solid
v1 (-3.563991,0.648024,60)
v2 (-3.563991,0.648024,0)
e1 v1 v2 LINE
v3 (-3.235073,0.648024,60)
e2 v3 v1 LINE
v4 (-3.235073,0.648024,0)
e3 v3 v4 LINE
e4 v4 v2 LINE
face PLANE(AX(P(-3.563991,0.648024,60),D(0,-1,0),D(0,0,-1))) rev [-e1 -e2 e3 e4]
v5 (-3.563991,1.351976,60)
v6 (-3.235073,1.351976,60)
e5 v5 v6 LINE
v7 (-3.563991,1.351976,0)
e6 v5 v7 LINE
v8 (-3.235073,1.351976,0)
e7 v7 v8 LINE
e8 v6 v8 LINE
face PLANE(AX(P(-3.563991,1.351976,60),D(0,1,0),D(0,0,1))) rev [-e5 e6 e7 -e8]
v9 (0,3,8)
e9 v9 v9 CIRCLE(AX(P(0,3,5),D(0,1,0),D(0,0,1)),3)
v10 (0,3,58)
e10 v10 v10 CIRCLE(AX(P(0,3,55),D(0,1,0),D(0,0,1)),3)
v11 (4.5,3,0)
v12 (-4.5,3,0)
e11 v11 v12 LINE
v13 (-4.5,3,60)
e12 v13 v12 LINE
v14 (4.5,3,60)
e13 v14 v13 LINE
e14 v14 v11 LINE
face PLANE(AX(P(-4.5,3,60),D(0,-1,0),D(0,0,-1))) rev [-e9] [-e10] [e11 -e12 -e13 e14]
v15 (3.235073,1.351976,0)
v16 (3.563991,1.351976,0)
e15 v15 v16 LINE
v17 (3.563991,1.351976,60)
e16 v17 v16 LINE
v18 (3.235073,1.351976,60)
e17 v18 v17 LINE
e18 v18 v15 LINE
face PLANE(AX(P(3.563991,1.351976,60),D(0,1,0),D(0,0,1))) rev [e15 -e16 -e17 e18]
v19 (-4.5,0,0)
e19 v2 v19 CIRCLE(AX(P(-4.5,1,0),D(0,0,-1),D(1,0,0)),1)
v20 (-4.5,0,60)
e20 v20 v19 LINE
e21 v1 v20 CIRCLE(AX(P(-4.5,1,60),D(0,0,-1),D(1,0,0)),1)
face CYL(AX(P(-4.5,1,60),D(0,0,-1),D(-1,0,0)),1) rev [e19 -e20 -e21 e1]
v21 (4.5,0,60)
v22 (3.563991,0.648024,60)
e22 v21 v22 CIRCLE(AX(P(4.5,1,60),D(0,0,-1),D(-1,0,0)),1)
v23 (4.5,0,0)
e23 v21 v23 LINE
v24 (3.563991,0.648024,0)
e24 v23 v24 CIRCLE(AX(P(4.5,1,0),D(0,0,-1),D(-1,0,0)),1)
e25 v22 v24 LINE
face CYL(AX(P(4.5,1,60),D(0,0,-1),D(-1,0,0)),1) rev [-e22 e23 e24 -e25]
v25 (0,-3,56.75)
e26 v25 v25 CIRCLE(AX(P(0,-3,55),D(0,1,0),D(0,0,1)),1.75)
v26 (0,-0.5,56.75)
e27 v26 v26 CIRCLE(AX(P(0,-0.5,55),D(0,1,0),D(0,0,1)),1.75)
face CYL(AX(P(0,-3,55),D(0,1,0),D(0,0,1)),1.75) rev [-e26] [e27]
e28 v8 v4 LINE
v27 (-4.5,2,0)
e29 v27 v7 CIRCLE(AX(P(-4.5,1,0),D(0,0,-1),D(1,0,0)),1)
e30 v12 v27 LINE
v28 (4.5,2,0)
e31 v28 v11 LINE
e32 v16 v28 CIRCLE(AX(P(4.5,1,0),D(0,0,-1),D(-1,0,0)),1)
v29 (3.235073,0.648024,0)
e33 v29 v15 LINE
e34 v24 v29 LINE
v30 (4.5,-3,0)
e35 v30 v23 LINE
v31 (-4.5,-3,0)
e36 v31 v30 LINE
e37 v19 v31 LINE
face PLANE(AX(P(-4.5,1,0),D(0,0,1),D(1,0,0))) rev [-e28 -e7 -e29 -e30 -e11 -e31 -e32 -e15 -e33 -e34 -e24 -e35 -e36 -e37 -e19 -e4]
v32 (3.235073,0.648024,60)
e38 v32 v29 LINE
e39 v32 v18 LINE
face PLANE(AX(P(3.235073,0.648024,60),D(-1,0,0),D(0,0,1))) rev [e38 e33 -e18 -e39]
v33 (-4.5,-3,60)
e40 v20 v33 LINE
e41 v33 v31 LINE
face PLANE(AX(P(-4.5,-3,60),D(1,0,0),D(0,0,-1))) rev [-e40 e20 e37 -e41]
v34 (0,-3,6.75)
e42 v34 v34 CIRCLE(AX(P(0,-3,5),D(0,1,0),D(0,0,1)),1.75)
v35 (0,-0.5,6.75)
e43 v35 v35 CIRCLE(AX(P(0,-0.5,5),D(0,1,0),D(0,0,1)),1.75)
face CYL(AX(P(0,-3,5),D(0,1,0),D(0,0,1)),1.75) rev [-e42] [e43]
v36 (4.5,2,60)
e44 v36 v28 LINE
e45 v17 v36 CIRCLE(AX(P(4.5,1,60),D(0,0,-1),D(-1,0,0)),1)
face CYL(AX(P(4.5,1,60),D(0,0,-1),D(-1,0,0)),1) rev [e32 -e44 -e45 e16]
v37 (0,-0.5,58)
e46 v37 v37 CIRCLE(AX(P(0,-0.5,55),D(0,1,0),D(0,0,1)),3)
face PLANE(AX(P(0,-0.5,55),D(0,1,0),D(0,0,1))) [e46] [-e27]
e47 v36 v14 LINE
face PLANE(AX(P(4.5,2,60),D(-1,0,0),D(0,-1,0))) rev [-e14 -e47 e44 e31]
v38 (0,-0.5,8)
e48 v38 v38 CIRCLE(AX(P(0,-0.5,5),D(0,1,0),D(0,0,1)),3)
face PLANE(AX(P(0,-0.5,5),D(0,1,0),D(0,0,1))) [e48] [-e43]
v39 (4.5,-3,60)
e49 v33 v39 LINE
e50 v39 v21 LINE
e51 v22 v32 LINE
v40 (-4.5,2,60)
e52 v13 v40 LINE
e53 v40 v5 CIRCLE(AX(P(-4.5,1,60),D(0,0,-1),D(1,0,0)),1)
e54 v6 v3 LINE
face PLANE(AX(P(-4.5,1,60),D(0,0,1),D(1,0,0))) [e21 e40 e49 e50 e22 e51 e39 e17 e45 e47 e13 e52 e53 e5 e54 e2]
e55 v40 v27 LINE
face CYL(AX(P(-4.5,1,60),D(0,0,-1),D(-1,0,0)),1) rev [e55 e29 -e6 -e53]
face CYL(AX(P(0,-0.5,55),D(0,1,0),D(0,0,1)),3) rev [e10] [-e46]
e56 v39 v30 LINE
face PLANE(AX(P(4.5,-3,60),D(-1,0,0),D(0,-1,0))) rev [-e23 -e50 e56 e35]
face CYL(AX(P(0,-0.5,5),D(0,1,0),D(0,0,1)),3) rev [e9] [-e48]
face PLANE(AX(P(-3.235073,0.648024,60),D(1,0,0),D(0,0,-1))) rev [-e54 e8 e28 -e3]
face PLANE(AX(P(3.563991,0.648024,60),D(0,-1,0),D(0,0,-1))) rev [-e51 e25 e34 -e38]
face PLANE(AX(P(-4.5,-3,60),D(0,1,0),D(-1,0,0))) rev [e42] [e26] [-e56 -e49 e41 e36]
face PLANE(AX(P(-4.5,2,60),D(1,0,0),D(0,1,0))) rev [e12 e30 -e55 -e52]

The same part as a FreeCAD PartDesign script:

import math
import FreeCAD as App
import Part
import Sketcher
Q = App.Units.Quantity

doc = App.newDocument("Part")
body = doc.addObject("PartDesign::Body", "Body")

# Sketch on XY plane
sketch1 = body.newObject("Sketcher::SketchObject", "Sketch")
sketch1.AttachmentSupport = (doc.getObject("XY_Plane"), [""])
sketch1.MapMode = "FlatFace"
sketch1.addGeometry([
    Part.LineSegment(App.Vector(-4.5, -3, 0), App.Vector(4.5, -3, 0)),  # 0
    Part.LineSegment(App.Vector(4.5, -3, 0), App.Vector(4.5, 0, 0)),  # 1
    Part.ArcOfCircle(Part.Circle(App.Vector(4.5, 1, 0), App.Vector(0, 0, 1), 1), math.radians(-159), math.radians(-90)),  # 2
    Part.LineSegment(App.Vector(3.56, 0.65, 0), App.Vector(3.24, 0.65, 0)),  # 3
    Part.LineSegment(App.Vector(3.24, 0.65, 0), App.Vector(3.24, 1.35, 0)),  # 4
    Part.LineSegment(App.Vector(3.24, 1.35, 0), App.Vector(3.56, 1.35, 0)),  # 5
    Part.ArcOfCircle(Part.Circle(App.Vector(4.5, 1, 0), App.Vector(0, 0, 1), 1), math.radians(90), math.radians(159)),  # 6
    Part.LineSegment(App.Vector(4.5, 2, 0), App.Vector(4.5, 3, 0)),  # 7
    Part.LineSegment(App.Vector(4.5, 3, 0), App.Vector(-4.5, 3, 0)),  # 8
    Part.LineSegment(App.Vector(-4.5, 3, 0), App.Vector(-4.5, 2, 0)),  # 9
    Part.ArcOfCircle(Part.Circle(App.Vector(-4.5, 1, 0), App.Vector(0, 0, 1), 1), math.radians(21), math.radians(90)),  # 10
    Part.LineSegment(App.Vector(-3.56, 1.35, 0), App.Vector(-3.24, 1.35, 0)),  # 11
    Part.LineSegment(App.Vector(-3.24, 1.35, 0), App.Vector(-3.24, 0.65, 0)),  # 12
    Part.LineSegment(App.Vector(-3.24, 0.65, 0), App.Vector(-3.56, 0.65, 0)),  # 13
    Part.ArcOfCircle(Part.Circle(App.Vector(-4.5, 1, 0), App.Vector(0, 0, 1), 1), math.radians(-90), math.radians(-21)),  # 14
    Part.LineSegment(App.Vector(-4.5, 0, 0), App.Vector(-4.5, -3, 0)),  # 15
], False)
sketch1.addConstraint([
    Sketcher.Constraint("Coincident", 0, 2, 1, 1),
    Sketcher.Constraint("Coincident", 1, 2, 2, 2),
    Sketcher.Constraint("Coincident", 2, 1, 3, 1),
    Sketcher.Constraint("Coincident", 3, 2, 4, 1),
    Sketcher.Constraint("Coincident", 4, 2, 5, 1),
    Sketcher.Constraint("Coincident", 5, 2, 6, 2),
    Sketcher.Constraint("Coincident", 6, 1, 7, 1),
    Sketcher.Constraint("Coincident", 7, 2, 8, 1),
    Sketcher.Constraint("Coincident", 8, 2, 9, 1),
    Sketcher.Constraint("Coincident", 9, 2, 10, 2),
    Sketcher.Constraint("Coincident", 10, 1, 11, 1),
    Sketcher.Constraint("Coincident", 11, 2, 12, 1),
    Sketcher.Constraint("Coincident", 12, 2, 13, 1),
    Sketcher.Constraint("Coincident", 13, 2, 14, 2),
    Sketcher.Constraint("Coincident", 14, 1, 15, 1),
    Sketcher.Constraint("Coincident", 15, 2, 0, 1),
    Sketcher.Constraint("Horizontal", 0),
    Sketcher.Constraint("Vertical", 1),
    Sketcher.Constraint("Horizontal", 3),
    Sketcher.Constraint("Vertical", 4),
    Sketcher.Constraint("Horizontal", 5),
    Sketcher.Constraint("Vertical", 7),
    Sketcher.Constraint("Horizontal", 8),
    Sketcher.Constraint("Vertical", 9),
    Sketcher.Constraint("Horizontal", 11),
    Sketcher.Constraint("Vertical", 12),
    Sketcher.Constraint("Horizontal", 13),
    Sketcher.Constraint("Vertical", 15),
    Sketcher.Constraint("Coincident", 6, 3, 2, 3),
    Sketcher.Constraint("Coincident", 14, 3, 10, 3),
    Sketcher.Constraint("Equal", 2, 6),
    Sketcher.Constraint("Equal", 6, 10),
    Sketcher.Constraint("Equal", 10, 14),
    Sketcher.Constraint("Symmetric", 0, 2, 8, 2, -1, 1),
    Sketcher.Constraint("Symmetric", 1, 2, 14, 1, -1, 1),
    Sketcher.Constraint("Symmetric", 2, 3, 10, 3, -2),
    Sketcher.Constraint("Symmetric", 4, 2, 11, 2, -2),
    Sketcher.Constraint("Horizontal", 3, 2, 12, 2),
    Sketcher.Constraint("Vertical", 6, 3, 0, 2),
    Sketcher.Constraint("Vertical", 2, 1, 5, 2),
    Sketcher.Constraint("Vertical", 1, 2, 6, 1),
    Sketcher.Constraint("Radius", 2, Q("1 mm")),
    Sketcher.Constraint("DistanceX", 0, 1, 0, 2, Q("9 mm")),
    Sketcher.Constraint("DistanceY", 1, 1, 1, 2, Q("3 mm")),
    Sketcher.Constraint("DistanceX", 3, 2, 3, 1, Q("0.328918 mm")),
    Sketcher.Constraint("DistanceY", 4, 1, 4, 2, Q("0.703953 mm")),
])
pad1 = body.newObject("PartDesign::Pad", "Pad")
pad1.Profile = sketch1
pad1.Length = 60

# Sketch on XZ plane
sketch2 = body.newObject("Sketcher::SketchObject", "Sketch001")
sketch2.AttachmentSupport = (doc.getObject("XZ_Plane"), [""])
sketch2.MapMode = "FlatFace"
sketch2.AttachmentOffset = App.Placement(App.Vector(0, 0, -3), App.Rotation())
sketch2.addGeometry(Part.Circle(App.Vector(0, 5, 0), App.Vector(0, 0, 1), 3), False)
sketch2.addConstraint([
    Sketcher.Constraint("PointOnObject", 0, 3, -2),
    Sketcher.Constraint("Diameter", 0, Q("6 mm")),
    Sketcher.Constraint("DistanceY", -1, 1, 0, 3, Q("5 mm")),
])
pocket1 = body.newObject("PartDesign::Pocket", "Pocket")
pocket1.Profile = sketch2
pocket1.Length = 3.5
pocket1.Reversed = True

# Sketch on XZ plane
sketch3 = body.newObject("Sketcher::SketchObject", "Sketch002")
sketch3.AttachmentSupport = (doc.getObject("XZ_Plane"), [""])
sketch3.MapMode = "FlatFace"
sketch3.AttachmentOffset = App.Placement(App.Vector(0, 0, -3), App.Rotation())
sketch3.addGeometry(Part.Circle(App.Vector(0, 5, 0), App.Vector(0, 0, 1), 1.8), False)
sketch3.addConstraint([
    Sketcher.Constraint("PointOnObject", 0, 3, -2),
    Sketcher.Constraint("Diameter", 0, Q("3.5 mm")),
    Sketcher.Constraint("DistanceY", -1, 1, 0, 3, Q("5 mm")),
])
pocket2 = body.newObject("PartDesign::Pocket", "Pocket001")
pocket2.Profile = sketch3
pocket2.Type = "ThroughAll"
pocket2.Reversed = True
doc.recompute()

linearpattern = body.newObject("PartDesign::LinearPattern", "LinearPattern")
linearpattern.Originals = [pocket1, pocket2]
linearpattern.Direction = (doc.getObject("Z_Axis"), [""])
linearpattern.Mode = "offset"
linearpattern.Offset = 50
linearpattern.Occurrences = 45
body.Tip = linearpattern

doc.recompute()
